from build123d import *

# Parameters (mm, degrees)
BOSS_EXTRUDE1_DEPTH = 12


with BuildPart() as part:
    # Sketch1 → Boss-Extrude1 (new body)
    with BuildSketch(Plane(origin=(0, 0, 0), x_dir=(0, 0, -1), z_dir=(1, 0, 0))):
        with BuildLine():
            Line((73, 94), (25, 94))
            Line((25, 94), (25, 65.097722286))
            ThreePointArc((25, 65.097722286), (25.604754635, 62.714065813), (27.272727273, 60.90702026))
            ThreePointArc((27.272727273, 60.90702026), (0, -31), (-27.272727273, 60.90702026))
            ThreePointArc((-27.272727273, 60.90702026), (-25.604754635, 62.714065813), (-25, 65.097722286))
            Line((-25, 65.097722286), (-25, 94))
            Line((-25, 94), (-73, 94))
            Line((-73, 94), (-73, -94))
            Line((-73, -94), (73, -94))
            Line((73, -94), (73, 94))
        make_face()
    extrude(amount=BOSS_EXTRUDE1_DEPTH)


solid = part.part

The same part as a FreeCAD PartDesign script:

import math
import FreeCAD as App
import Part
import Sketcher

doc = App.newDocument("Part")
body = doc.addObject("PartDesign::Body", "Body")

# Sketch on YZ plane
sketch1 = body.newObject("Sketcher::SketchObject", "Sketch")
sketch1.AttachmentSupport = (doc.getObject("YZ_Plane"), [""])
sketch1.MapMode = "FlatFace"
sketch1.addGeometry(Part.LineSegment(App.Vector(94, -73, 0), App.Vector(94, -25, 0)), False)
sketch1.addGeometry(Part.LineSegment(App.Vector(94, -25, 0), App.Vector(65.097722, -25, 0)), False)
sketch1.addGeometry(Part.ArcOfCircle(Part.Circle(App.Vector(65.097722, -30, 0), App.Vector(0, 0, 1), 5), math.radians(90), math.radians(146.944269)), False)
sketch1.addGeometry(Part.ArcOfCircle(Part.Circle(App.Vector(19, 0, 0), App.Vector(0, 0, 1), 50), math.radians(33.055731), math.radians(326.944269)), False)
sketch1.addGeometry(Part.ArcOfCircle(Part.Circle(App.Vector(65.097722, 30, 0), App.Vector(0, 0, 1), 5), math.radians(-146.944269), math.radians(-90)), False)
sketch1.addGeometry(Part.LineSegment(App.Vector(65.097722, 25, 0), App.Vector(94, 25, 0)), False)
sketch1.addGeometry(Part.LineSegment(App.Vector(94, 25, 0), App.Vector(94, 73, 0)), False)
sketch1.addGeometry(Part.LineSegment(App.Vector(94, 73, 0), App.Vector(-94, 73, 0)), False)
sketch1.addGeometry(Part.LineSegment(App.Vector(-94, 73, 0), App.Vector(-94, -73, 0)), False)
sketch1.addGeometry(Part.LineSegment(App.Vector(-94, -73, 0), App.Vector(94, -73, 0)), False)
sketch1.addConstraint(Sketcher.Constraint("Coincident", 0, 2, 1, 1))
sketch1.addConstraint(Sketcher.Constraint("Tangent", 1, 2, 2, 1))
sketch1.addConstraint(Sketcher.Constraint("Tangent", 2, 2, 3, 2))
sketch1.addConstraint(Sketcher.Constraint("Tangent", 3, 1, 4, 1))
sketch1.addConstraint(Sketcher.Constraint("Tangent", 4, 2, 5, 1))
sketch1.addConstraint(Sketcher.Constraint("Coincident", 5, 2, 6, 1))
sketch1.addConstraint(Sketcher.Constraint("Coincident", 6, 2, 7, 1))
sketch1.addConstraint(Sketcher.Constraint("Coincident", 7, 2, 8, 1))
sketch1.addConstraint(Sketcher.Constraint("Coincident", 8, 2, 9, 1))
sketch1.addConstraint(Sketcher.Constraint("Coincident", 9, 2, 0, 1))
sketch1.addConstraint(Sketcher.Constraint("Vertical", 0))
sketch1.addConstraint(Sketcher.Constraint("Horizontal", 1))
sketch1.addConstraint(Sketcher.Constraint("Horizontal", 5))
sketch1.addConstraint(Sketcher.Constraint("Vertical", 6))
sketch1.addConstraint(Sketcher.Constraint("Horizontal", 7))
sketch1.addConstraint(Sketcher.Constraint("Vertical", 8))
sketch1.addConstraint(Sketcher.Constraint("Horizontal", 9))
sketch1.addConstraint(Sketcher.Constraint("Equal", 2, 4))
sketch1.addConstraint(Sketcher.Constraint("Symmetric", 6, 2, 8, 2, -1, 1))
sketch1.addConstraint(Sketcher.Constraint("Symmetric", 2, 3, 4, 3, -1))
sketch1.addConstraint(Sketcher.Constraint("Vertical", 0, 2, 5, 2))
sketch1.addConstraint(Sketcher.Constraint("Radius", 2, 5.0))
sketch1.addConstraint(Sketcher.Constraint("Radius", 3, 50.0))
sketch1.addConstraint(Sketcher.Constraint("DistanceX", 7, 2, 7, 1, 188.0))
sketch1.addConstraint(Sketcher.Constraint("DistanceY", 0, 1, 0, 2, 48.0))
sketch1.addConstraint(Sketcher.Constraint("DistanceY", 8, 2, 8, 1, 146.0))
sketch1.addConstraint(Sketcher.Constraint("DistanceX", -1, 1, 3, 3, 19.0))
pad1 = body.newObject("PartDesign::Pad", "Pad")
pad1.Profile = sketch1
pad1.Length = 12

doc.recompute()
